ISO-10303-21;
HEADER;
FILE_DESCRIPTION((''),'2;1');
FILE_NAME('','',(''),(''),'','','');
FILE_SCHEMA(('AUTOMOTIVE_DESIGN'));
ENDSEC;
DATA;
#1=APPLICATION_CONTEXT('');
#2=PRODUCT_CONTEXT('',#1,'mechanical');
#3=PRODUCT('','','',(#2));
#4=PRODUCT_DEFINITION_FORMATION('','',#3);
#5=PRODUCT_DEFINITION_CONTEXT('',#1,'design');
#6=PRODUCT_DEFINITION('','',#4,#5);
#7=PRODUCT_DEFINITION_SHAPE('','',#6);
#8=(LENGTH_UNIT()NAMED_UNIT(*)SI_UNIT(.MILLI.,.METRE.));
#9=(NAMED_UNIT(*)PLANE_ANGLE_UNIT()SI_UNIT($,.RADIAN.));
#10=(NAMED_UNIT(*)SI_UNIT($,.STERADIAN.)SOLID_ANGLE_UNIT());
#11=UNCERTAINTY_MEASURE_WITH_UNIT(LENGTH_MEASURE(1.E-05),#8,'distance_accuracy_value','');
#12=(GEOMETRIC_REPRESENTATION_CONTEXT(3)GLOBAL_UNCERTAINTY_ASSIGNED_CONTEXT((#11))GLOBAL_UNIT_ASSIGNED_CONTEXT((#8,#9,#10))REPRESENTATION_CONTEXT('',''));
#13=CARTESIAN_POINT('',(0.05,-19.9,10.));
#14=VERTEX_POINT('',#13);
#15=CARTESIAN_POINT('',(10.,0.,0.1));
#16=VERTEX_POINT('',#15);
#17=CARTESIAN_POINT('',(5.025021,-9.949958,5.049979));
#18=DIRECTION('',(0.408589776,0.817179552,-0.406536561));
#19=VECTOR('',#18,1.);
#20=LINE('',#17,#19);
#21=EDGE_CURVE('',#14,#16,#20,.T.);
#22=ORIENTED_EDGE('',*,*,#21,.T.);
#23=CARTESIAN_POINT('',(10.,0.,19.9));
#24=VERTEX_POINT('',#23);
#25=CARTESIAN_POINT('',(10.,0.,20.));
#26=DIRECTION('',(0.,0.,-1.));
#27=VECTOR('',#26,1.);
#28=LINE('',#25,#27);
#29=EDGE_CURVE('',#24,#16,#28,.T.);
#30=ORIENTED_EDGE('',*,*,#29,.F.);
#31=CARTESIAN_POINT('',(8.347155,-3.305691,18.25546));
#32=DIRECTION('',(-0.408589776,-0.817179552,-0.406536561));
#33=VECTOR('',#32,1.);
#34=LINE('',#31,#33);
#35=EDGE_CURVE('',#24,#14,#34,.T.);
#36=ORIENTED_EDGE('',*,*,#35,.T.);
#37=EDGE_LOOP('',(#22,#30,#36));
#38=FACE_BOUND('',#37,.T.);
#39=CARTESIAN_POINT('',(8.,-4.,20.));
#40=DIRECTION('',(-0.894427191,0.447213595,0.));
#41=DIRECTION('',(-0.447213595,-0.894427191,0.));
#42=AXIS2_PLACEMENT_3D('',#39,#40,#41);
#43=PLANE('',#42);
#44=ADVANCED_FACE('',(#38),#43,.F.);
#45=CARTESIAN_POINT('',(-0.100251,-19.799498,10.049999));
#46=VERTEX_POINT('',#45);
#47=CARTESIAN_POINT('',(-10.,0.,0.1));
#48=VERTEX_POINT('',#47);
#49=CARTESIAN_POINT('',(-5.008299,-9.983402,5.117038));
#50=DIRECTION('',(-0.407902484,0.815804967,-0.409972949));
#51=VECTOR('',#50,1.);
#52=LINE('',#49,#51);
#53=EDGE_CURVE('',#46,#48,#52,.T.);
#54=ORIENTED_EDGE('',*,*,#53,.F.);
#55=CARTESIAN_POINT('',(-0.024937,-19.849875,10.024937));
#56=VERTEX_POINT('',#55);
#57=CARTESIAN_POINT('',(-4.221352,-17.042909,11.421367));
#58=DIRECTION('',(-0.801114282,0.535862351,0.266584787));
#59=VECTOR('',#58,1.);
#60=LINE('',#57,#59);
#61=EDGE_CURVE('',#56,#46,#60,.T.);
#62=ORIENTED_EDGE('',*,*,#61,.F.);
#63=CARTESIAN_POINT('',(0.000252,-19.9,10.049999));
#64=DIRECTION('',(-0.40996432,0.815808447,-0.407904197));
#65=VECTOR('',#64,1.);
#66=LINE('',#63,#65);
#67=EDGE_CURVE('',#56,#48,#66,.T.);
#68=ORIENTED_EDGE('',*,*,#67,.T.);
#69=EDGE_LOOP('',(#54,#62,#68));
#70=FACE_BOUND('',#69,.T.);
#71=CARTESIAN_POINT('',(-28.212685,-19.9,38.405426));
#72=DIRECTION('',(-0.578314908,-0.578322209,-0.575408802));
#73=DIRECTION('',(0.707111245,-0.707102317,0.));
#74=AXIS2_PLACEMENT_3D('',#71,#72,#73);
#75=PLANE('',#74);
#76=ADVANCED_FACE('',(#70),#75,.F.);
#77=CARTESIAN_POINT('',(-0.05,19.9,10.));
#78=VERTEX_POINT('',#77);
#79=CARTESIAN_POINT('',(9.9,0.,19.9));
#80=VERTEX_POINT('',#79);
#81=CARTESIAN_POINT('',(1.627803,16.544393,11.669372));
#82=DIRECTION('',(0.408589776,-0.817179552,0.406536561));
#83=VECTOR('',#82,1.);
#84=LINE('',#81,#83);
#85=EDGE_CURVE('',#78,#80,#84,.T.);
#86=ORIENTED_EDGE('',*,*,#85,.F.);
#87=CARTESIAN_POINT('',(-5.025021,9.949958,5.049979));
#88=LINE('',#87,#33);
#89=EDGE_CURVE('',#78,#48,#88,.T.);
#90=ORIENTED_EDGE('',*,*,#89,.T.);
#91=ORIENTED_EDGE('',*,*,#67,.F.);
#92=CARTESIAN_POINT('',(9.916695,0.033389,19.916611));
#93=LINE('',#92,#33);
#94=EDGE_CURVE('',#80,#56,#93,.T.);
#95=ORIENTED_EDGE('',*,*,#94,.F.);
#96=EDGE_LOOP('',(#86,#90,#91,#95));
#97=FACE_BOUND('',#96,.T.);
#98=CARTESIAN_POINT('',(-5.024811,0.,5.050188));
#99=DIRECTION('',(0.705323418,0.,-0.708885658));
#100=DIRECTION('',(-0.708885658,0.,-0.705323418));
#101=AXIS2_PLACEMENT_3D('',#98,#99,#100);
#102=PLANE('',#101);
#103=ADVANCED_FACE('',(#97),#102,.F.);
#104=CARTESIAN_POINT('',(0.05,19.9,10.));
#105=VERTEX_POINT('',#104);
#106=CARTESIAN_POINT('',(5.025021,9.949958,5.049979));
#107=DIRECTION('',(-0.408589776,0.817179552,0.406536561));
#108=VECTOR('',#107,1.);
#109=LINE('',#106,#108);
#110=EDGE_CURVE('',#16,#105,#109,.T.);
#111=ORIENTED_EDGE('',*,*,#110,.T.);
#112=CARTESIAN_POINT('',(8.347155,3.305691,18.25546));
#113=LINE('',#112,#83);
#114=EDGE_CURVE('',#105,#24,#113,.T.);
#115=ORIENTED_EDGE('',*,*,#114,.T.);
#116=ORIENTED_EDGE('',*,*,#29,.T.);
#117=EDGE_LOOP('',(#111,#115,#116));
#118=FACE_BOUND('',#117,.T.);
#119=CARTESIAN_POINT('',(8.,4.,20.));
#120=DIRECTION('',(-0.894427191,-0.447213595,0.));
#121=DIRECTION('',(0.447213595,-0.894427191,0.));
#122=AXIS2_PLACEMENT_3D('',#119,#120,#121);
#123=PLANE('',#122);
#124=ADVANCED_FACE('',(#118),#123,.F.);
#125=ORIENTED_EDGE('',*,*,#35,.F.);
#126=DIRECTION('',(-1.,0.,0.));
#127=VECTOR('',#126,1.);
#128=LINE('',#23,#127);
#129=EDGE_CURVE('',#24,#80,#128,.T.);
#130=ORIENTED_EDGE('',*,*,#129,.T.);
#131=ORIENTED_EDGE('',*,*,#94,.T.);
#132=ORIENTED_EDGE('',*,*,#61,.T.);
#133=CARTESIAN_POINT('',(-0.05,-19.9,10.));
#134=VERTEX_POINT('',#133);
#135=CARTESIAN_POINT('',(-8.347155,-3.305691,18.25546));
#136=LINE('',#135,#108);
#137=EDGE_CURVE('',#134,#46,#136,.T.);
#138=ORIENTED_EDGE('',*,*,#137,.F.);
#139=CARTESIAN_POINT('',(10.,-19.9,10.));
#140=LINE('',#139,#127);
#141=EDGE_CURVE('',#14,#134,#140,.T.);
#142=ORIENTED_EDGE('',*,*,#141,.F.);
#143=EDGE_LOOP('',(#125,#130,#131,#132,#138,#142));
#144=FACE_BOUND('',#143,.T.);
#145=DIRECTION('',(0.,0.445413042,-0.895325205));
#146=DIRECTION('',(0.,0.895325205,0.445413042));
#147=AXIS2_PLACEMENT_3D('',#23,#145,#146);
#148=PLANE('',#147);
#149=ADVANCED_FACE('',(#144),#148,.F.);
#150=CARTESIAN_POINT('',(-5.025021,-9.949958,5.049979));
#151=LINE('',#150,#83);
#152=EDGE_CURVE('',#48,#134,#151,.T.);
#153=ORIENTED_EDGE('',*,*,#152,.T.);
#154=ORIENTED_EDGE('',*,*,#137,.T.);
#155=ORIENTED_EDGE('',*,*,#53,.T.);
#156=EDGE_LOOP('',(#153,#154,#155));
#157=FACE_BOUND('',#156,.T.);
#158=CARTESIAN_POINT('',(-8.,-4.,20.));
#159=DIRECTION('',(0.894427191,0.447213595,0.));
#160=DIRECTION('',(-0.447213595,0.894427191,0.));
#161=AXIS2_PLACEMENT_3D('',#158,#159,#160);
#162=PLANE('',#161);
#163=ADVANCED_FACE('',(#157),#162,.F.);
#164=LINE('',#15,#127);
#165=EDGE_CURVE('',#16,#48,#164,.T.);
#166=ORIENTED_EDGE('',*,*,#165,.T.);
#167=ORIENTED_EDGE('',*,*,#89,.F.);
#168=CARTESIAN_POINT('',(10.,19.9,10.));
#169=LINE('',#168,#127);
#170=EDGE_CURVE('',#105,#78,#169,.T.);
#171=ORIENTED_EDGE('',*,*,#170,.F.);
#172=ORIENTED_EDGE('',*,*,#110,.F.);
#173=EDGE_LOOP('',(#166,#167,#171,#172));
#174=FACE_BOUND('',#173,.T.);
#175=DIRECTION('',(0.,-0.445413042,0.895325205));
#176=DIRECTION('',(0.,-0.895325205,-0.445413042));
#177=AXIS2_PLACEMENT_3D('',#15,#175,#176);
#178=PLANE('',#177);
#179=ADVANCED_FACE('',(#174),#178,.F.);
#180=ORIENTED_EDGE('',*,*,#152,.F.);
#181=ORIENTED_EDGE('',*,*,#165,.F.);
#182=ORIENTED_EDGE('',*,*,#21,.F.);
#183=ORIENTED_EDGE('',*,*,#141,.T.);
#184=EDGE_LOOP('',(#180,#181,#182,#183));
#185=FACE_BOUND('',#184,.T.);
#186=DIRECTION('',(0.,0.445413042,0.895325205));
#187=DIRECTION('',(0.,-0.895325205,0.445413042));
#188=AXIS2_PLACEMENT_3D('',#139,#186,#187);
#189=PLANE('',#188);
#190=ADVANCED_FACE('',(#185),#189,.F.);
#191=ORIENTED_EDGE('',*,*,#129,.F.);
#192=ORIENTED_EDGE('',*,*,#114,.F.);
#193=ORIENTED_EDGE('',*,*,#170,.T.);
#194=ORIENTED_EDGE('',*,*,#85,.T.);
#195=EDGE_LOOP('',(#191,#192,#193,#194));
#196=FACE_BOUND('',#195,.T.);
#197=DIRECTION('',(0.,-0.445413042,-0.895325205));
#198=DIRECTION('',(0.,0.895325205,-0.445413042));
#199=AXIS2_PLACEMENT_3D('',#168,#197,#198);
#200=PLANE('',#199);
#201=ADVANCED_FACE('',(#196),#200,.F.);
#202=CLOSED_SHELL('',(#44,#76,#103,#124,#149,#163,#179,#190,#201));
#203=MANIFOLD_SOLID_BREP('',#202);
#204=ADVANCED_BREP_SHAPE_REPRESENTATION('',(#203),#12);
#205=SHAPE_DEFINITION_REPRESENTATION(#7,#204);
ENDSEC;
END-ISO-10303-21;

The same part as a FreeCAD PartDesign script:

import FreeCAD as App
import Part
import Sketcher
from FreeCAD import Vector

doc = App.newDocument("Part")
params = doc.addObject("Spreadsheet::Sheet", "Params")
for row, (alias, value) in enumerate([
    ("pad1_length", "20 mm"),
    ("sketch2_width", "40 mm"),
    ("sketch2_height", "20 mm"),
    ("pocket2_length", "40 mm"),
], start=1):
    params.set(f"A{row}", alias)
    params.set(f"B{row}", "=" + value)
    params.setAlias(f"B{row}", alias)

body = doc.addObject("PartDesign::Body", "Body")

sketch1 = doc.addObject("Sketcher::SketchObject", "Sketch")
body.addObject(sketch1)
sketch1.AttachmentSupport = (doc.XY_Plane, [""])
sketch1.MapMode = "FlatFace"
sketch1.addGeometry(Part.LineSegment(Vector(0, 20, 0), Vector(-10, 0, 0)), False)
sketch1.addGeometry(Part.LineSegment(Vector(-10, 0, 0), Vector(0, -20, 0)), False)
sketch1.addGeometry(Part.LineSegment(Vector(0, -20, 0), Vector(10, 0, 0)), False)
sketch1.addGeometry(Part.LineSegment(Vector(10, 0, 0), Vector(0, 20, 0)), False)
sketch1.addConstraint(Sketcher.Constraint("Coincident", 0, 2, 1, 1))
sketch1.addConstraint(Sketcher.Constraint("Coincident", 1, 2, 2, 1))
sketch1.addConstraint(Sketcher.Constraint("Coincident", 2, 2, 3, 1))
sketch1.addConstraint(Sketcher.Constraint("Coincident", 3, 2, 0, 1))
sketch1.addConstraint(Sketcher.Constraint("Symmetric", 0, 2, 2, 2, -1, 1))
sketch1.addConstraint(Sketcher.Constraint("Symmetric", 1, 2, 3, 2, -1, 1))
sketch1.addConstraint(Sketcher.Constraint("PointOnObject", 0, 2, -1))
sketch1.addConstraint(Sketcher.Constraint("PointOnObject", 1, 2, -2))
sketch1.addConstraint(Sketcher.Constraint("DistanceX", 0, 2, -1, 1, 10.0))
sketch1.addConstraint(Sketcher.Constraint("DistanceY", 1, 2, -1, 1, 20.0))
pad1 = doc.addObject("PartDesign::Pad", "Pad")
body.addObject(pad1)
pad1.Profile = sketch1
pad1.setExpression("Length", "Params.pad1_length")

sketch2 = doc.addObject("Sketcher::SketchObject", "Sketch001")
body.addObject(sketch2)
sketch2.AttachmentSupport = (doc.YZ_Plane, [""])
sketch2.MapMode = "FlatFace"
sketch2.addGeometry(Part.LineSegment(Vector(20, 20, 0), Vector(-20, 20, 0)), False)
sketch2.addGeometry(Part.LineSegment(Vector(-20, 20, 0), Vector(-20, 0, 0)), False)
sketch2.addGeometry(Part.LineSegment(Vector(-20, 0, 0), Vector(20, 0, 0)), False)
sketch2.addGeometry(Part.LineSegment(Vector(20, 0, 0), Vector(20, 20, 0)), False)
sketch2.addGeometry(Part.LineSegment(Vector(20, 10, 0), Vector(0, 0, 0)), False)
sketch2.addGeometry(Part.LineSegment(Vector(0, 0, 0), Vector(-20, 10, 0)), False)
sketch2.addGeometry(Part.LineSegment(Vector(-20, 10, 0), Vector(0, 20, 0)), False)
sketch2.addGeometry(Part.LineSegment(Vector(0, 20, 0), Vector(20, 10, 0)), False)
sketch2.addConstraint(Sketcher.Constraint("Coincident", 0, 2, 1, 1))
sketch2.addConstraint(Sketcher.Constraint("Coincident", 1, 2, 2, 1))
sketch2.addConstraint(Sketcher.Constraint("Coincident", 2, 2, 3, 1))
sketch2.addConstraint(Sketcher.Constraint("Coincident", 3, 2, 0, 1))
sketch2.addConstraint(Sketcher.Constraint("Coincident", 4, 2, 5, 1))
sketch2.addConstraint(Sketcher.Constraint("Coincident", 5, 2, 6, 1))
sketch2.addConstraint(Sketcher.Constraint("Coincident", 6, 2, 7, 1))
sketch2.addConstraint(Sketcher.Constraint("Coincident", 7, 2, 4, 1))
sketch2.addConstraint(Sketcher.Constraint("Horizontal", 0))
sketch2.addConstraint(Sketcher.Constraint("Vertical", 1))
sketch2.addConstraint(Sketcher.Constraint("Horizontal", 2))
sketch2.addConstraint(Sketcher.Constraint("Vertical", 3))
sketch2.addConstraint(Sketcher.Constraint("Symmetric", 1, 2, 2, 2, -1, 1))
sketch2.addConstraint(Sketcher.Constraint("Symmetric", 5, 2, 7, 2, -2))
sketch2.addConstraint(Sketcher.Constraint("PointOnObject", 4, 2, -2))
sketch2.addConstraint(Sketcher.Constraint("PointOnObject", 6, 2, -2))
sketch2.addConstraint(Sketcher.Constraint("Parallel", 4, 6))
sketch2.addConstraint(Sketcher.Constraint("DistanceX", 0, 2, 0, 1, 40.0))
sketch2.addConstraint(Sketcher.Constraint("DistanceY", 1, 2, 1, 1, 20.0))
sketch2.addConstraint(Sketcher.Constraint("DistanceY", -1, 1, 5, 2, 10.0))
sketch2.addConstraint(Sketcher.Constraint("DistanceY", -1, 1, 4, 2, 0.1))
sketch2.addConstraint(Sketcher.Constraint("DistanceX", 5, 2, -1, 1, 19.9))
sketch2.setExpression("Constraints[17]", "Params.sketch2_width")
sketch2.setExpression("Constraints[18]", "Params.sketch2_height")
pocket1 = doc.addObject("PartDesign::Pocket", "Pocket")
body.addObject(pocket1)
pocket1.Profile = sketch2
pocket1.Type = "ThroughAll"
pocket1.Midplane = True

sketch3 = doc.addObject("Sketcher::SketchObject", "Sketch002")
body.addObject(sketch3)
sketch3.Placement = App.Placement(Vector(-5.024811, 0, 5.050188), App.Rotation(Vector(-0.708885658, 0, -0.705323418), Vector(0, 1, 0), Vector(0.705323418, 0, -0.708885658), "ZXY"))
sketch3.addGeometry(Part.LineSegment(Vector(7, 0, 0), Vector(-7, 20, 0)), False)
sketch3.addGeometry(Part.LineSegment(Vector(-7, 20, 0), Vector(-21, 0, 0)), False)
sketch3.addGeometry(Part.LineSegment(Vector(-21, 0, 0), Vector(-7, -20, 0)), False)
sketch3.addGeometry(Part.LineSegment(Vector(-7, -20, 0), Vector(7, 0, 0)), False)
sketch3.addConstraint(Sketcher.Constraint("Coincident", 0, 2, 1, 1))
sketch3.addConstraint(Sketcher.Constraint("Coincident", 1, 2, 2, 1))
sketch3.addConstraint(Sketcher.Constraint("Coincident", 2, 2, 3, 1))
sketch3.addConstraint(Sketcher.Constraint("Coincident", 3, 2, 0, 1))
sketch3.addConstraint(Sketcher.Constraint("PointOnObject", 1, 2, -1))
sketch3.addConstraint(Sketcher.Constraint("PointOnObject", 3, 2, -1))
sketch3.addConstraint(Sketcher.Constraint("Parallel", 0, 2))
sketch3.addConstraint(Sketcher.Constraint("Parallel", 1, 3))
sketch3.addConstraint(Sketcher.Constraint("DistanceY", -1, 1, 0, 2, 19.9))
sketch3.addConstraint(Sketcher.Constraint("Distance", 1, 24.392981))
sketch3.addConstraint(Sketcher.Constraint("DistanceX", 0, 2, -1, 1, 7.01779))
sketch3.addConstraint(Sketcher.Constraint("DistanceX", 2, 2, -1, 1, 7.088678))
pocket2 = doc.addObject("PartDesign::Pocket", "Pocket001")
body.addObject(pocket2)
pocket2.Profile = sketch3
pocket2.setExpression("Length", "Params.pocket2_length")

doc.recompute()
